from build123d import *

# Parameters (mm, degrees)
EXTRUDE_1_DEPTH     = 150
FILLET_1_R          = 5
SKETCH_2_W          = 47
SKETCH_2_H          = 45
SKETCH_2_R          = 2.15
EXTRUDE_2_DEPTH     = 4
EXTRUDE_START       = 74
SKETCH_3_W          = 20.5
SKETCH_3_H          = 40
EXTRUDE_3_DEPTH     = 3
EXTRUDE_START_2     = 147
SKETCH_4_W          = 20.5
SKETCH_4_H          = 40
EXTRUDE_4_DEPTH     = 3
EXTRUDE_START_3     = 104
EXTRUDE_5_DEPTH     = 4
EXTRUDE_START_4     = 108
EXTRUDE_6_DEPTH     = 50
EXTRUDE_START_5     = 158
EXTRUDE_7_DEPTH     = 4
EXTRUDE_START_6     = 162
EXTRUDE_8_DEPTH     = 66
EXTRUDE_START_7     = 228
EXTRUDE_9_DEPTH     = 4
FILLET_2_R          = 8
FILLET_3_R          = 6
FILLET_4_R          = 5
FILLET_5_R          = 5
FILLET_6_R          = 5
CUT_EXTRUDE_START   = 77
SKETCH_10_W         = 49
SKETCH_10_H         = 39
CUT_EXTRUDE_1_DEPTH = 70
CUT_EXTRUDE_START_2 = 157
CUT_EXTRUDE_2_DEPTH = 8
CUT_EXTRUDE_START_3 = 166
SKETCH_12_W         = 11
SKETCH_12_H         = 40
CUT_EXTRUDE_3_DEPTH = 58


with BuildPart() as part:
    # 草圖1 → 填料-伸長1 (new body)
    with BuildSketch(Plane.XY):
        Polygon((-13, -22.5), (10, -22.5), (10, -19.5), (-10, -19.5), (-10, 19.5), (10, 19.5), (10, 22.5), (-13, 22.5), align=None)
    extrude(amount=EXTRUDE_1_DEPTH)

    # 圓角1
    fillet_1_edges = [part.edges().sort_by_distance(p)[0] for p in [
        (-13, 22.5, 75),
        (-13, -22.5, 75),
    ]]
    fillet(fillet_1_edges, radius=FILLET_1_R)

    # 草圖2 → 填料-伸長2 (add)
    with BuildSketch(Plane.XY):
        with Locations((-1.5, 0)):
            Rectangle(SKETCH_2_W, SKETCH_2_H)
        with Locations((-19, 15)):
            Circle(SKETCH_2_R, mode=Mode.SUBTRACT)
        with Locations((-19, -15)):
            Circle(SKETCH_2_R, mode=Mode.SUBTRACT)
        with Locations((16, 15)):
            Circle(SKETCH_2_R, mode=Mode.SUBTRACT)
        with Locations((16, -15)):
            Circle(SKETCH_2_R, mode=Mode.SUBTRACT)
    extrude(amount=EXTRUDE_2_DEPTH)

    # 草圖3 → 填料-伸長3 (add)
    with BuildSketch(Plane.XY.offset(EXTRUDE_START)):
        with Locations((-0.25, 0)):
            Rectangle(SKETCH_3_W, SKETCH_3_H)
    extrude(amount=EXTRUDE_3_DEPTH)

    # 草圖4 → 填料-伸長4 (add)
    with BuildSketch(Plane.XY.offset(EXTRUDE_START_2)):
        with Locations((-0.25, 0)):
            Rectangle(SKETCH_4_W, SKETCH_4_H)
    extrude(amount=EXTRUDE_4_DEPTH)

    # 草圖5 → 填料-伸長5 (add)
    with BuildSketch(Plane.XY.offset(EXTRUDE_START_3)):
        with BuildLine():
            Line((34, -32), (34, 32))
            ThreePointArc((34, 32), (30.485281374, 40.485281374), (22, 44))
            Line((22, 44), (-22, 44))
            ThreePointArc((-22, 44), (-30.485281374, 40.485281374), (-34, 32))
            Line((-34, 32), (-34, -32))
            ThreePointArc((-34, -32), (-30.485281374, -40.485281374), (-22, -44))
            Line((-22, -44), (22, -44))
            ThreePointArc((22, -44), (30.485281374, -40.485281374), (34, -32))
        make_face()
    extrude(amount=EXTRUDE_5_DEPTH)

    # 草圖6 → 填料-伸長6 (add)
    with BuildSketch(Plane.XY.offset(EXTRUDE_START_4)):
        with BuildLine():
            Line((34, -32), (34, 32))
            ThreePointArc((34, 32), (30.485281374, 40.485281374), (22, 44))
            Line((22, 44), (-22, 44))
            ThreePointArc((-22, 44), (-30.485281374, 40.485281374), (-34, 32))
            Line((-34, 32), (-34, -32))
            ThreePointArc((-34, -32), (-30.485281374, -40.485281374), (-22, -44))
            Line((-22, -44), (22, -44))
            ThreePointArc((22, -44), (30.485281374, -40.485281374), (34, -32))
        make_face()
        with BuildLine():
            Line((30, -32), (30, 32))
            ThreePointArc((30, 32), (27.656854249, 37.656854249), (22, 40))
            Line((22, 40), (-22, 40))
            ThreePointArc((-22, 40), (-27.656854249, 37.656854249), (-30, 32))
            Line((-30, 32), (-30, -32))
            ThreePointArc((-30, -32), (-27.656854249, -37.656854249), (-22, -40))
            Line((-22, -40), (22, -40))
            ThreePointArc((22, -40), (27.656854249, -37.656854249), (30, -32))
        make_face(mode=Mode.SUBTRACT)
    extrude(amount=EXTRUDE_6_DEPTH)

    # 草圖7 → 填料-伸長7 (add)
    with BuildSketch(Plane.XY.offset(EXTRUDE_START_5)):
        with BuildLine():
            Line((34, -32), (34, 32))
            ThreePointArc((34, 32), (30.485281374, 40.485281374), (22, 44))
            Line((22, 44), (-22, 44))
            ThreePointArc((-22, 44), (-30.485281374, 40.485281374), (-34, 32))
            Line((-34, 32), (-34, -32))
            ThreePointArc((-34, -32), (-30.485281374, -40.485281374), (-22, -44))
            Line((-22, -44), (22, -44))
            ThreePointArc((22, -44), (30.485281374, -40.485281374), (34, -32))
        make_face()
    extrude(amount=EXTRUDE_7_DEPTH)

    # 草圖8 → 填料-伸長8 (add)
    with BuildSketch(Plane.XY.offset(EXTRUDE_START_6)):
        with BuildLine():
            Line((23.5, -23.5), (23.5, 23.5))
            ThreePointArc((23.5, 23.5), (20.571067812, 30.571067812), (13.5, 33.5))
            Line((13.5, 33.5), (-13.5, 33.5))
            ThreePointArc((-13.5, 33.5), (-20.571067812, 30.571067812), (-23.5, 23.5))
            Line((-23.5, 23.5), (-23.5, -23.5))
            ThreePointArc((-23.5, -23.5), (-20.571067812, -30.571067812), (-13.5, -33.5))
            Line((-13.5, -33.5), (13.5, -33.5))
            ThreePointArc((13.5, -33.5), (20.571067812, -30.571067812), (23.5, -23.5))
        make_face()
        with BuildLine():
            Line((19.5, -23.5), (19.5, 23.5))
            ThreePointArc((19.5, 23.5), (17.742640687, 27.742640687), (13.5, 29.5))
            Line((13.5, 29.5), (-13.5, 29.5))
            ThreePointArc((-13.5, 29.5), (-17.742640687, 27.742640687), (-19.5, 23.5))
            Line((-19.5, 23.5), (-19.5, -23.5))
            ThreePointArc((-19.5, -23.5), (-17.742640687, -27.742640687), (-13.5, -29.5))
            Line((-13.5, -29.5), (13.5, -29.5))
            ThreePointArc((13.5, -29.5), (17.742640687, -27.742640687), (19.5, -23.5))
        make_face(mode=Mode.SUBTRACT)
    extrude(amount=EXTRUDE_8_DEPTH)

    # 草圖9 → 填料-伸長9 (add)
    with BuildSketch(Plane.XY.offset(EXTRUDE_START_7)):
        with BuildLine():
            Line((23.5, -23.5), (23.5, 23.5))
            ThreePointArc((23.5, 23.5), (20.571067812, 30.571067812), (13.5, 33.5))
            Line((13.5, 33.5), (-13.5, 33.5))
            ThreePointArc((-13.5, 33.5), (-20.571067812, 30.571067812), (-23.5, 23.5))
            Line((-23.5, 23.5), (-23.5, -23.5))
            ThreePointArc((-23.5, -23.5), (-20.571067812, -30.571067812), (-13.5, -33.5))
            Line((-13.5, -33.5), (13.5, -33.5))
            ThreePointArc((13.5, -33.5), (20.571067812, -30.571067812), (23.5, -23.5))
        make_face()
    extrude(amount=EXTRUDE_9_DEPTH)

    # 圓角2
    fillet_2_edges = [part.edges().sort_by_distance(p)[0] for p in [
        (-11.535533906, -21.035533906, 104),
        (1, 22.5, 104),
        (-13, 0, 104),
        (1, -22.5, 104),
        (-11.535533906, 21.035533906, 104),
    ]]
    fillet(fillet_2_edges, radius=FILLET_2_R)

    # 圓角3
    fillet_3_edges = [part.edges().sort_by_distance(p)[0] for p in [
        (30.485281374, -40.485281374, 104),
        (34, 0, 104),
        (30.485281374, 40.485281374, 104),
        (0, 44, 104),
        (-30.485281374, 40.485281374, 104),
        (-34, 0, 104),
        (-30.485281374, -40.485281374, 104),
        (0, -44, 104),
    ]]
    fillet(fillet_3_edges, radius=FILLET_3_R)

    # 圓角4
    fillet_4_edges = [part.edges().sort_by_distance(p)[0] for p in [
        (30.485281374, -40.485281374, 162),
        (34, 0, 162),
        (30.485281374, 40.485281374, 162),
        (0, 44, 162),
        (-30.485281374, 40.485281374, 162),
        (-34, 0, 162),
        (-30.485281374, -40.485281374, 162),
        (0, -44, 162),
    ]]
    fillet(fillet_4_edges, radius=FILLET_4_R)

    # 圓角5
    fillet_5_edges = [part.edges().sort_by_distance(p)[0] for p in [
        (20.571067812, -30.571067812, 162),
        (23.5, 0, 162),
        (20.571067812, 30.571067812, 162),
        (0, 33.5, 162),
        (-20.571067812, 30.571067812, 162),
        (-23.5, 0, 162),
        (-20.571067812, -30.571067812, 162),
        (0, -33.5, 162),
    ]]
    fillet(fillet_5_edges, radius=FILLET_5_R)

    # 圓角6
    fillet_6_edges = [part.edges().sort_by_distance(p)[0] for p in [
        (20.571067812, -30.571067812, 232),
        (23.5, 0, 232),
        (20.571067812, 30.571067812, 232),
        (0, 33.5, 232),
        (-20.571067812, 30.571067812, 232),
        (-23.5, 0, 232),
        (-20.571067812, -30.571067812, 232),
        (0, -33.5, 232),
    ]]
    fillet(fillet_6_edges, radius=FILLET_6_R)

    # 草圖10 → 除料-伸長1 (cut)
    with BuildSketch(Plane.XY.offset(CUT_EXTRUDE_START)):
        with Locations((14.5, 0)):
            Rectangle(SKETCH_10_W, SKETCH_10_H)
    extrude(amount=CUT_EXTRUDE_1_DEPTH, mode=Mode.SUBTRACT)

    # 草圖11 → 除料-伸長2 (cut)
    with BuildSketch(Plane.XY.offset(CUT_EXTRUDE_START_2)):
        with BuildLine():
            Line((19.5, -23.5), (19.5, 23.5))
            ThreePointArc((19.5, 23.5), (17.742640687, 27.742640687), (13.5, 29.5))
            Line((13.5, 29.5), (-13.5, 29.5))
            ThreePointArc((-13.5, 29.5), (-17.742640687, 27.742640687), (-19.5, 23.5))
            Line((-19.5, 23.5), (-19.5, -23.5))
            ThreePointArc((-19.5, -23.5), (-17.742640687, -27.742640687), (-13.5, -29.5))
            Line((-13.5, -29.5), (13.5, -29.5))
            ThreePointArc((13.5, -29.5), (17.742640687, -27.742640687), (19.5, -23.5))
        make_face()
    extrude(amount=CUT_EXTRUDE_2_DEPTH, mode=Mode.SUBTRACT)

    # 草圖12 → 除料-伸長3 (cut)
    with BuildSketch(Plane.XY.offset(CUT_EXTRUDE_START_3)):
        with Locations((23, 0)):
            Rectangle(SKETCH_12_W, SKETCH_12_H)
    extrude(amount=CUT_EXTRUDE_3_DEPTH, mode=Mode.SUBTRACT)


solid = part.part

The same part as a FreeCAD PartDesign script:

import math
import FreeCAD as App
import Part
import Sketcher

V = App.Vector


def edges_at(feature, points):
    """Names of the edges that pass closest to the given points."""
    edges = feature.Shape.Edges
    near = lambda p: min(range(len(edges)), key=lambda i: edges[i].distToShape(Part.Vertex(*p))[0])
    return sorted({f"Edge{near(p) + 1}" for p in points})


def add_polygon(sketch, points):
    """Adds a closed chain of lines whose ends are joined by coincident constraints."""
    first, n = sketch.GeometryCount, len(points)
    for a, b in zip(points, points[1:] + points[:1]):
        sketch.addGeometry(Part.LineSegment(App.Vector(*a, 0), App.Vector(*b, 0)), False)
    for i in range(n):
        sketch.addConstraint(Sketcher.Constraint("Coincident", first + i, 2, first + (i + 1) % n, 1))

doc = App.newDocument("Part")
body = doc.addObject("PartDesign::Body", "Body")

# Sketch on XY plane
sketch1 = body.newObject("Sketcher::SketchObject", "Sketch")
sketch1.AttachmentSupport = (doc.getObject("XY_Plane"), [""])
sketch1.MapMode = "FlatFace"
add_polygon(sketch1, [(-13, -22.5), (10, -22.5), (10, -19.5), (-10, -19.5), (-10, 19.5), (10, 19.5), (10, 22.5), (-13, 22.5)])  # lines 0-7
sketch1.addConstraint(Sketcher.Constraint("Horizontal", 0))
sketch1.addConstraint(Sketcher.Constraint("Vertical", 1))
sketch1.addConstraint(Sketcher.Constraint("Horizontal", 2))
sketch1.addConstraint(Sketcher.Constraint("Vertical", 3))
sketch1.addConstraint(Sketcher.Constraint("Horizontal", 4))
sketch1.addConstraint(Sketcher.Constraint("Vertical", 5))
sketch1.addConstraint(Sketcher.Constraint("Horizontal", 6))
sketch1.addConstraint(Sketcher.Constraint("Vertical", 7))
sketch1.addConstraint(Sketcher.Constraint("Symmetric", 1, 2, 3, 2, -1, 1))
sketch1.addConstraint(Sketcher.Constraint("Symmetric", 0, 2, 5, 2, -1))
sketch1.addConstraint(Sketcher.Constraint("DistanceX", 0, 1, 0, 2, 23.0))
sketch1.addConstraint(Sketcher.Constraint("DistanceX", 2, 2, 2, 1, 20.0))
sketch1.addConstraint(Sketcher.Constraint("DistanceY", 1, 1, 1, 2, 3.0))
sketch1.addConstraint(Sketcher.Constraint("DistanceY", 3, 1, 3, 2, 39.0))
pad1 = body.newObject("PartDesign::Pad", "Pad")
pad1.Profile = sketch1
pad1.Length = 150
doc.recompute()

fillet = body.newObject("PartDesign::Fillet", "Fillet")
fillet.Base = (pad1, edges_at(pad1, [(-13, 22.5, 75), (-13, -22.5, 75)]))
fillet.Radius = 5

# Sketch on XY plane
sketch2 = body.newObject("Sketcher::SketchObject", "Sketch001")
sketch2.AttachmentSupport = (doc.getObject("XY_Plane"), [""])
sketch2.MapMode = "FlatFace"
add_polygon(sketch2, [(-25, 22.5), (-25, -22.5), (22, -22.5), (22, 22.5)])  # lines 0-3
sketch2.addGeometry(Part.Circle(V(-19, -15, 0), V(0, 0, 1), 2.1), False)  # 4
sketch2.addGeometry(Part.Circle(V(16, -15, 0), V(0, 0, 1), 2.1), False)  # 5
sketch2.addGeometry(Part.Circle(V(-19, 15, 0), V(0, 0, 1), 2.1), False)  # 6
sketch2.addGeometry(Part.Circle(V(16, 15, 0), V(0, 0, 1), 2.1), False)  # 7
sketch2.addConstraint(Sketcher.Constraint("Vertical", 0))
sketch2.addConstraint(Sketcher.Constraint("Horizontal", 1))
sketch2.addConstraint(Sketcher.Constraint("Vertical", 2))
sketch2.addConstraint(Sketcher.Constraint("Horizontal", 3))
sketch2.addConstraint(Sketcher.Constraint("Equal", 4, 5))
sketch2.addConstraint(Sketcher.Constraint("Equal", 5, 6))
sketch2.addConstraint(Sketcher.Constraint("Equal", 6, 7))
sketch2.addConstraint(Sketcher.Constraint("Symmetric", 4, 3, 6, 3, -1))
sketch2.addConstraint(Sketcher.Constraint("Symmetric", 5, 3, 7, 3, -1))
sketch2.addConstraint(Sketcher.Constraint("Horizontal", 4, 3, 5, 3))
sketch2.addConstraint(Sketcher.Constraint("Diameter", 4, 4.3))
sketch2.addConstraint(Sketcher.Constraint("DistanceX", 1, 1, 1, 2, 47.0))
sketch2.addConstraint(Sketcher.Constraint("DistanceY", 0, 2, 0, 1, 45.0))
sketch2.addConstraint(Sketcher.Constraint("DistanceX", 4, 3, -1, 1, 19.0))
sketch2.addConstraint(Sketcher.Constraint("DistanceY", 4, 3, -1, 1, 15.0))
sketch2.addConstraint(Sketcher.Constraint("DistanceX", -1, 1, 5, 3, 16.0))
sketch2.addConstraint(Sketcher.Constraint("DistanceX", 0, 2, -1, 1, 25.0))
sketch2.addConstraint(Sketcher.Constraint("DistanceY", 0, 2, -1, 1, 22.5))
pad2 = body.newObject("PartDesign::Pad", "Pad001")
pad2.Profile = sketch2
pad2.Length = 4

# Sketch on XY plane
sketch3 = body.newObject("Sketcher::SketchObject", "Sketch002")
sketch3.AttachmentSupport = (doc.getObject("XY_Plane"), [""])
sketch3.MapMode = "FlatFace"
sketch3.AttachmentOffset = App.Placement(V(0, 0, 74), App.Rotation())
add_polygon(sketch3, [(-10, 20), (-10, -20), (10, -20), (10, 20)])  # lines 0-3
sketch3.addConstraint(Sketcher.Constraint("Vertical", 0))
sketch3.addConstraint(Sketcher.Constraint("Horizontal", 1))
sketch3.addConstraint(Sketcher.Constraint("Vertical", 2))
sketch3.addConstraint(Sketcher.Constraint("Horizontal", 3))
sketch3.addConstraint(Sketcher.Constraint("DistanceY", 0, 2, 0, 1, 40.0))
sketch3.addConstraint(Sketcher.Constraint("DistanceX", 1, 1, 1, 2, 20.5))
sketch3.addConstraint(Sketcher.Constraint("DistanceY", 0, 2, -1, 1, 20.0))
sketch3.addConstraint(Sketcher.Constraint("DistanceX", -1, 1, 1, 2, 10.0))
pad3 = body.newObject("PartDesign::Pad", "Pad002")
pad3.Profile = sketch3
pad3.Length = 3

# Sketch on XY plane
sketch4 = body.newObject("Sketcher::SketchObject", "Sketch003")
sketch4.AttachmentSupport = (doc.getObject("XY_Plane"), [""])
sketch4.MapMode = "FlatFace"
sketch4.AttachmentOffset = App.Placement(V(0, 0, 147), App.Rotation())
add_polygon(sketch4, [(-10, 20), (-10, -20), (10, -20), (10, 20)])  # lines 0-3
sketch4.addConstraint(Sketcher.Constraint("Vertical", 0))
sketch4.addConstraint(Sketcher.Constraint("Horizontal", 1))
sketch4.addConstraint(Sketcher.Constraint("Vertical", 2))
sketch4.addConstraint(Sketcher.Constraint("Horizontal", 3))
sketch4.addConstraint(Sketcher.Constraint("DistanceY", 0, 2, 0, 1, 40.0))
sketch4.addConstraint(Sketcher.Constraint("DistanceX", 1, 1, 1, 2, 20.5))
sketch4.addConstraint(Sketcher.Constraint("DistanceY", 0, 2, -1, 1, 20.0))
sketch4.addConstraint(Sketcher.Constraint("DistanceX", -1, 1, 1, 2, 10.0))
pad4 = body.newObject("PartDesign::Pad", "Pad003")
pad4.Profile = sketch4
pad4.Length = 3

# Sketch on XY plane
sketch5 = body.newObject("Sketcher::SketchObject", "Sketch004")
sketch5.AttachmentSupport = (doc.getObject("XY_Plane"), [""])
sketch5.MapMode = "FlatFace"
sketch5.AttachmentOffset = App.Placement(V(0, 0, 104), App.Rotation())
sketch5.addGeometry(Part.LineSegment(V(34, -32, 0), V(34, 32, 0)), False)
sketch5.addGeometry(Part.ArcOfCircle(Part.Circle(V(22, 32, 0), V(0, 0, 1), 12), math.radians(0), math.radians(90)), False)
sketch5.addGeometry(Part.LineSegment(V(22, 44, 0), V(-22, 44, 0)), False)
sketch5.addGeometry(Part.ArcOfCircle(Part.Circle(V(-22, 32, 0), V(0, 0, 1), 12), math.radians(90), math.radians(180)), False)
sketch5.addGeometry(Part.LineSegment(V(-34, 32, 0), V(-34, -32, 0)), False)
sketch5.addGeometry(Part.ArcOfCircle(Part.Circle(V(-22, -32, 0), V(0, 0, 1), 12), math.radians(-180), math.radians(-90)), False)
sketch5.addGeometry(Part.LineSegment(V(-22, -44, 0), V(22, -44, 0)), False)
sketch5.addGeometry(Part.ArcOfCircle(Part.Circle(V(22, -32, 0), V(0, 0, 1), 12), math.radians(-90), math.radians(0)), False)
sketch5.addConstraint(Sketcher.Constraint("Tangent", 0, 2, 1, 1))
sketch5.addConstraint(Sketcher.Constraint("Tangent", 1, 2, 2, 1))
sketch5.addConstraint(Sketcher.Constraint("Tangent", 2, 2, 3, 1))
sketch5.addConstraint(Sketcher.Constraint("Tangent", 3, 2, 4, 1))
sketch5.addConstraint(Sketcher.Constraint("Tangent", 4, 2, 5, 1))
sketch5.addConstraint(Sketcher.Constraint("Tangent", 5, 2, 6, 1))
sketch5.addConstraint(Sketcher.Constraint("Tangent", 6, 2, 7, 1))
sketch5.addConstraint(Sketcher.Constraint("Tangent", 7, 2, 0, 1))
sketch5.addConstraint(Sketcher.Constraint("Vertical", 0))
sketch5.addConstraint(Sketcher.Constraint("Horizontal", 2))
sketch5.addConstraint(Sketcher.Constraint("Vertical", 4))
sketch5.addConstraint(Sketcher.Constraint("Horizontal", 6))
sketch5.addConstraint(Sketcher.Constraint("Equal", 1, 3))
sketch5.addConstraint(Sketcher.Constraint("Equal", 3, 5))
sketch5.addConstraint(Sketcher.Constraint("Equal", 5, 7))
sketch5.addConstraint(Sketcher.Constraint("Symmetric", 1, 3, 5, 3, -1, 1))
sketch5.addConstraint(Sketcher.Constraint("Radius", 1, 12.0))
sketch5.addConstraint(Sketcher.Constraint("DistanceX", 2, 2, 2, 1, 44.0))
sketch5.addConstraint(Sketcher.Constraint("DistanceY", 0, 1, 0, 2, 64.0))
pad5 = body.newObject("PartDesign::Pad", "Pad004")
pad5.Profile = sketch5
pad5.Length = 4

# Sketch on XY plane
sketch6 = body.newObject("Sketcher::SketchObject", "Sketch005")
sketch6.AttachmentSupport = (doc.getObject("XY_Plane"), [""])
sketch6.MapMode = "FlatFace"
sketch6.AttachmentOffset = App.Placement(V(0, 0, 108), App.Rotation())
sketch6.addGeometry(Part.LineSegment(V(34, -32, 0), V(34, 32, 0)), False)
sketch6.addGeometry(Part.ArcOfCircle(Part.Circle(V(22, 32, 0), V(0, 0, 1), 12), math.radians(0), math.radians(90)), False)
sketch6.addGeometry(Part.LineSegment(V(22, 44, 0), V(-22, 44, 0)), False)
sketch6.addGeometry(Part.ArcOfCircle(Part.Circle(V(-22, 32, 0), V(0, 0, 1), 12), math.radians(90), math.radians(180)), False)
sketch6.addGeometry(Part.LineSegment(V(-34, 32, 0), V(-34, -32, 0)), False)
sketch6.addGeometry(Part.ArcOfCircle(Part.Circle(V(-22, -32, 0), V(0, 0, 1), 12), math.radians(-180), math.radians(-90)), False)
sketch6.addGeometry(Part.LineSegment(V(-22, -44, 0), V(22, -44, 0)), False)
sketch6.addGeometry(Part.ArcOfCircle(Part.Circle(V(22, -32, 0), V(0, 0, 1), 12), math.radians(-90), math.radians(0)), False)
sketch6.addGeometry(Part.LineSegment(V(30, 32, 0), V(30, -32, 0)), False)
sketch6.addGeometry(Part.ArcOfCircle(Part.Circle(V(22, -32, 0), V(0, 0, 1), 8), math.radians(-90), math.radians(0)), False)
sketch6.addGeometry(Part.LineSegment(V(22, -40, 0), V(-22, -40, 0)), False)
sketch6.addGeometry(Part.ArcOfCircle(Part.Circle(V(-22, -32, 0), V(0, 0, 1), 8), math.radians(-180), math.radians(-90)), False)
sketch6.addGeometry(Part.LineSegment(V(-30, -32, 0), V(-30, 32, 0)), False)
sketch6.addGeometry(Part.ArcOfCircle(Part.Circle(V(-22, 32, 0), V(0, 0, 1), 8), math.radians(90), math.radians(180)), False)
sketch6.addGeometry(Part.LineSegment(V(-22, 40, 0), V(22, 40, 0)), False)
sketch6.addGeometry(Part.ArcOfCircle(Part.Circle(V(22, 32, 0), V(0, 0, 1), 8), math.radians(0), math.radians(90)), False)
sketch6.addConstraint(Sketcher.Constraint("Tangent", 0, 2, 1, 1))
sketch6.addConstraint(Sketcher.Constraint("Tangent", 1, 2, 2, 1))
sketch6.addConstraint(Sketcher.Constraint("Tangent", 2, 2, 3, 1))
sketch6.addConstraint(Sketcher.Constraint("Tangent", 3, 2, 4, 1))
sketch6.addConstraint(Sketcher.Constraint("Tangent", 4, 2, 5, 1))
sketch6.addConstraint(Sketcher.Constraint("Tangent", 5, 2, 6, 1))
sketch6.addConstraint(Sketcher.Constraint("Tangent", 6, 2, 7, 1))
sketch6.addConstraint(Sketcher.Constraint("Tangent", 7, 2, 0, 1))
sketch6.addConstraint(Sketcher.Constraint("Tangent", 8, 2, 9, 2))
sketch6.addConstraint(Sketcher.Constraint("Tangent", 9, 1, 10, 1))
sketch6.addConstraint(Sketcher.Constraint("Tangent", 10, 2, 11, 2))
sketch6.addConstraint(Sketcher.Constraint("Tangent", 11, 1, 12, 1))
sketch6.addConstraint(Sketcher.Constraint("Tangent", 12, 2, 13, 2))
sketch6.addConstraint(Sketcher.Constraint("Tangent", 13, 1, 14, 1))
sketch6.addConstraint(Sketcher.Constraint("Tangent", 14, 2, 15, 2))
sketch6.addConstraint(Sketcher.Constraint("Tangent", 15, 1, 8, 1))
sketch6.addConstraint(Sketcher.Constraint("Vertical", 0))
sketch6.addConstraint(Sketcher.Constraint("Horizontal", 2))
sketch6.addConstraint(Sketcher.Constraint("Vertical", 4))
sketch6.addConstraint(Sketcher.Constraint("Horizontal", 6))
sketch6.addConstraint(Sketcher.Constraint("Vertical", 8))
sketch6.addConstraint(Sketcher.Constraint("Horizontal", 10))
sketch6.addConstraint(Sketcher.Constraint("Vertical", 12))
sketch6.addConstraint(Sketcher.Constraint("Horizontal", 14))
sketch6.addConstraint(Sketcher.Constraint("Coincident", 9, 3, 7, 3))
sketch6.addConstraint(Sketcher.Constraint("Coincident", 11, 3, 5, 3))
sketch6.addConstraint(Sketcher.Constraint("Coincident", 13, 3, 3, 3))
sketch6.addConstraint(Sketcher.Constraint("Equal", 1, 3))
sketch6.addConstraint(Sketcher.Constraint("Equal", 3, 5))
sketch6.addConstraint(Sketcher.Constraint("Equal", 5, 7))
sketch6.addConstraint(Sketcher.Constraint("Equal", 13, 15))
sketch6.addConstraint(Sketcher.Constraint("Symmetric", 1, 3, 5, 3, -1, 1))
sketch6.addConstraint(Sketcher.Constraint("Radius", 1, 12.0))
sketch6.addConstraint(Sketcher.Constraint("Radius", 9, 8.0))
sketch6.addConstraint(Sketcher.Constraint("DistanceX", 2, 2, 2, 1, 44.0))
sketch6.addConstraint(Sketcher.Constraint("DistanceY", 0, 1, 0, 2, 64.0))
pad6 = body.newObject("PartDesign::Pad", "Pad005")
pad6.Profile = sketch6
pad6.Length = 50

# Sketch on XY plane
sketch7 = body.newObject("Sketcher::SketchObject", "Sketch006")
sketch7.AttachmentSupport = (doc.getObject("XY_Plane"), [""])
sketch7.MapMode = "FlatFace"
sketch7.AttachmentOffset = App.Placement(V(0, 0, 158), App.Rotation())
sketch7.addGeometry(Part.LineSegment(V(34, -32, 0), V(34, 32, 0)), False)
sketch7.addGeometry(Part.ArcOfCircle(Part.Circle(V(22, 32, 0), V(0, 0, 1), 12), math.radians(0), math.radians(90)), False)
sketch7.addGeometry(Part.LineSegment(V(22, 44, 0), V(-22, 44, 0)), False)
sketch7.addGeometry(Part.ArcOfCircle(Part.Circle(V(-22, 32, 0), V(0, 0, 1), 12), math.radians(90), math.radians(180)), False)
sketch7.addGeometry(Part.LineSegment(V(-34, 32, 0), V(-34, -32, 0)), False)
sketch7.addGeometry(Part.ArcOfCircle(Part.Circle(V(-22, -32, 0), V(0, 0, 1), 12), math.radians(-180), math.radians(-90)), False)
sketch7.addGeometry(Part.LineSegment(V(-22, -44, 0), V(22, -44, 0)), False)
sketch7.addGeometry(Part.ArcOfCircle(Part.Circle(V(22, -32, 0), V(0, 0, 1), 12), math.radians(-90), math.radians(0)), False)
sketch7.addConstraint(Sketcher.Constraint("Tangent", 0, 2, 1, 1))
sketch7.addConstraint(Sketcher.Constraint("Tangent", 1, 2, 2, 1))
sketch7.addConstraint(Sketcher.Constraint("Tangent", 2, 2, 3, 1))
sketch7.addConstraint(Sketcher.Constraint("Tangent", 3, 2, 4, 1))
sketch7.addConstraint(Sketcher.Constraint("Tangent", 4, 2, 5, 1))
sketch7.addConstraint(Sketcher.Constraint("Tangent", 5, 2, 6, 1))
sketch7.addConstraint(Sketcher.Constraint("Tangent", 6, 2, 7, 1))
sketch7.addConstraint(Sketcher.Constraint("Tangent", 7, 2, 0, 1))
sketch7.addConstraint(Sketcher.Constraint("Vertical", 0))
sketch7.addConstraint(Sketcher.Constraint("Horizontal", 2))
sketch7.addConstraint(Sketcher.Constraint("Vertical", 4))
sketch7.addConstraint(Sketcher.Constraint("Horizontal", 6))
sketch7.addConstraint(Sketcher.Constraint("Equal", 1, 3))
sketch7.addConstraint(Sketcher.Constraint("Equal", 3, 5))
sketch7.addConstraint(Sketcher.Constraint("Equal", 5, 7))
sketch7.addConstraint(Sketcher.Constraint("Symmetric", 1, 3, 5, 3, -1, 1))
sketch7.addConstraint(Sketcher.Constraint("Radius", 1, 12.0))
sketch7.addConstraint(Sketcher.Constraint("DistanceX", 2, 2, 2, 1, 44.0))
sketch7.addConstraint(Sketcher.Constraint("DistanceY", 0, 1, 0, 2, 64.0))
pad7 = body.newObject("PartDesign::Pad", "Pad006")
pad7.Profile = sketch7
pad7.Length = 4

# Sketch on XY plane
sketch8 = body.newObject("Sketcher::SketchObject", "Sketch007")
sketch8.AttachmentSupport = (doc.getObject("XY_Plane"), [""])
sketch8.MapMode = "FlatFace"
sketch8.AttachmentOffset = App.Placement(V(0, 0, 162), App.Rotation())
sketch8.addGeometry(Part.LineSegment(V(24, -24, 0), V(24, 24, 0)), False)
sketch8.addGeometry(Part.ArcOfCircle(Part.Circle(V(14, 24, 0), V(0, 0, 1), 10), math.radians(0), math.radians(90)), False)
sketch8.addGeometry(Part.LineSegment(V(14, 34, 0), V(-14, 34, 0)), False)
sketch8.addGeometry(Part.ArcOfCircle(Part.Circle(V(-14, 24, 0), V(0, 0, 1), 10), math.radians(90), math.radians(180)), False)
sketch8.addGeometry(Part.LineSegment(V(-24, 24, 0), V(-24, -24, 0)), False)
sketch8.addGeometry(Part.ArcOfCircle(Part.Circle(V(-14, -24, 0), V(0, 0, 1), 10), math.radians(180), math.radians(270)), False)
sketch8.addGeometry(Part.LineSegment(V(-14, -34, 0), V(14, -34, 0)), False)
sketch8.addGeometry(Part.ArcOfCircle(Part.Circle(V(14, -24, 0), V(0, 0, 1), 10), math.radians(-90), math.radians(0)), False)
sketch8.addGeometry(Part.LineSegment(V(20, 24, 0), V(20, -24, 0)), False)
sketch8.addGeometry(Part.ArcOfCircle(Part.Circle(V(14, -24, 0), V(0, 0, 1), 6), math.radians(-90), math.radians(0)), False)
sketch8.addGeometry(Part.LineSegment(V(14, -30, 0), V(-14, -30, 0)), False)
sketch8.addGeometry(Part.ArcOfCircle(Part.Circle(V(-14, -24, 0), V(0, 0, 1), 6), math.radians(180), math.radians(270)), False)
sketch8.addGeometry(Part.LineSegment(V(-20, -24, 0), V(-20, 24, 0)), False)
sketch8.addGeometry(Part.ArcOfCircle(Part.Circle(V(-14, 24, 0), V(0, 0, 1), 6), math.radians(90), math.radians(180)), False)
sketch8.addGeometry(Part.LineSegment(V(-14, 30, 0), V(14, 30, 0)), False)
sketch8.addGeometry(Part.ArcOfCircle(Part.Circle(V(14, 24, 0), V(0, 0, 1), 6), math.radians(0), math.radians(90)), False)
sketch8.addConstraint(Sketcher.Constraint("Tangent", 0, 2, 1, 1))
sketch8.addConstraint(Sketcher.Constraint("Tangent", 1, 2, 2, 1))
sketch8.addConstraint(Sketcher.Constraint("Tangent", 2, 2, 3, 1))
sketch8.addConstraint(Sketcher.Constraint("Tangent", 3, 2, 4, 1))
sketch8.addConstraint(Sketcher.Constraint("Tangent", 4, 2, 5, 1))
sketch8.addConstraint(Sketcher.Constraint("Tangent", 5, 2, 6, 1))
sketch8.addConstraint(Sketcher.Constraint("Tangent", 6, 2, 7, 1))
sketch8.addConstraint(Sketcher.Constraint("Tangent", 7, 2, 0, 1))
sketch8.addConstraint(Sketcher.Constraint("Tangent", 8, 2, 9, 2))
sketch8.addConstraint(Sketcher.Constraint("Tangent", 9, 1, 10, 1))
sketch8.addConstraint(Sketcher.Constraint("Tangent", 10, 2, 11, 2))
sketch8.addConstraint(Sketcher.Constraint("Tangent", 11, 1, 12, 1))
sketch8.addConstraint(Sketcher.Constraint("Tangent", 12, 2, 13, 2))
sketch8.addConstraint(Sketcher.Constraint("Tangent", 13, 1, 14, 1))
sketch8.addConstraint(Sketcher.Constraint("Tangent", 14, 2, 15, 2))
sketch8.addConstraint(Sketcher.Constraint("Tangent", 15, 1, 8, 1))
sketch8.addConstraint(Sketcher.Constraint("Vertical", 0))
sketch8.addConstraint(Sketcher.Constraint("Horizontal", 2))
sketch8.addConstraint(Sketcher.Constraint("Vertical", 4))
sketch8.addConstraint(Sketcher.Constraint("Horizontal", 6))
sketch8.addConstraint(Sketcher.Constraint("Vertical", 8))
sketch8.addConstraint(Sketcher.Constraint("Horizontal", 10))
sketch8.addConstraint(Sketcher.Constraint("Vertical", 12))
sketch8.addConstraint(Sketcher.Constraint("Horizontal", 14))
sketch8.addConstraint(Sketcher.Constraint("Coincident", 9, 3, 7, 3))
sketch8.addConstraint(Sketcher.Constraint("Coincident", 11, 3, 5, 3))
sketch8.addConstraint(Sketcher.Constraint("Coincident", 13, 3, 3, 3))
sketch8.addConstraint(Sketcher.Constraint("Equal", 1, 3))
sketch8.addConstraint(Sketcher.Constraint("Equal", 3, 5))
sketch8.addConstraint(Sketcher.Constraint("Equal", 5, 7))
sketch8.addConstraint(Sketcher.Constraint("Equal", 13, 15))
sketch8.addConstraint(Sketcher.Constraint("Symmetric", 1, 3, 5, 3, -1, 1))
sketch8.addConstraint(Sketcher.Constraint("Radius", 1, 10.0))
sketch8.addConstraint(Sketcher.Constraint("Radius", 9, 6.0))
sketch8.addConstraint(Sketcher.Constraint("DistanceX", 2, 2, 2, 1, 27.0))
sketch8.addConstraint(Sketcher.Constraint("DistanceY", 0, 1, 0, 2, 47.0))
pad8 = body.newObject("PartDesign::Pad", "Pad007")
pad8.Profile = sketch8
pad8.Length = 66

# Sketch on XY plane
sketch9 = body.newObject("Sketcher::SketchObject", "Sketch008")
sketch9.AttachmentSupport = (doc.getObject("XY_Plane"), [""])
sketch9.MapMode = "FlatFace"
sketch9.AttachmentOffset = App.Placement(V(0, 0, 228), App.Rotation())
sketch9.addGeometry(Part.LineSegment(V(24, -24, 0), V(24, 24, 0)), False)
sketch9.addGeometry(Part.ArcOfCircle(Part.Circle(V(14, 24, 0), V(0, 0, 1), 10), math.radians(0), math.radians(90)), False)
sketch9.addGeometry(Part.LineSegment(V(14, 34, 0), V(-14, 34, 0)), False)
sketch9.addGeometry(Part.ArcOfCircle(Part.Circle(V(-14, 24, 0), V(0, 0, 1), 10), math.radians(90), math.radians(180)), False)
sketch9.addGeometry(Part.LineSegment(V(-24, 24, 0), V(-24, -24, 0)), False)
sketch9.addGeometry(Part.ArcOfCircle(Part.Circle(V(-14, -24, 0), V(0, 0, 1), 10), math.radians(180), math.radians(270)), False)
sketch9.addGeometry(Part.LineSegment(V(-14, -34, 0), V(14, -34, 0)), False)
sketch9.addGeometry(Part.ArcOfCircle(Part.Circle(V(14, -24, 0), V(0, 0, 1), 10), math.radians(-90), math.radians(0)), False)
sketch9.addConstraint(Sketcher.Constraint("Tangent", 0, 2, 1, 1))
sketch9.addConstraint(Sketcher.Constraint("Tangent", 1, 2, 2, 1))
sketch9.addConstraint(Sketcher.Constraint("Tangent", 2, 2, 3, 1))
sketch9.addConstraint(Sketcher.Constraint("Tangent", 3, 2, 4, 1))
sketch9.addConstraint(Sketcher.Constraint("Tangent", 4, 2, 5, 1))
sketch9.addConstraint(Sketcher.Constraint("Tangent", 5, 2, 6, 1))
sketch9.addConstraint(Sketcher.Constraint("Tangent", 6, 2, 7, 1))
sketch9.addConstraint(Sketcher.Constraint("Tangent", 7, 2, 0, 1))
sketch9.addConstraint(Sketcher.Constraint("Vertical", 0))
sketch9.addConstraint(Sketcher.Constraint("Horizontal", 2))
sketch9.addConstraint(Sketcher.Constraint("Vertical", 4))
sketch9.addConstraint(Sketcher.Constraint("Horizontal", 6))
sketch9.addConstraint(Sketcher.Constraint("Equal", 1, 3))
sketch9.addConstraint(Sketcher.Constraint("Equal", 3, 5))
sketch9.addConstraint(Sketcher.Constraint("Equal", 5, 7))
sketch9.addConstraint(Sketcher.Constraint("Symmetric", 1, 3, 5, 3, -1, 1))
sketch9.addConstraint(Sketcher.Constraint("Radius", 1, 10.0))
sketch9.addConstraint(Sketcher.Constraint("DistanceX", 2, 2, 2, 1, 27.0))
sketch9.addConstraint(Sketcher.Constraint("DistanceY", 0, 1, 0, 2, 47.0))
pad9 = body.newObject("PartDesign::Pad", "Pad008")
pad9.Profile = sketch9
pad9.Length = 4
doc.recompute()

fillet2 = body.newObject("PartDesign::Fillet", "Fillet001")
fillet2.Base = (pad9, edges_at(pad9, [
    (-11.536, -21.036, 104),
    (1, 22.5, 104),
    (-13, 0, 104),
    (1, -22.5, 104),
    (-11.536, 21.036, 104),
]))
fillet2.Radius = 8
doc.recompute()

fillet3 = body.newObject("PartDesign::Fillet", "Fillet002")
fillet3.Base = (fillet2, edges_at(fillet2, [
    (30.485, -40.485, 104),
    (34, 0, 104),
    (30.485, 40.485, 104),
    (0, 44, 104),
    (-30.485, 40.485, 104),
    (-34, 0, 104),
    (-30.485, -40.485, 104),
    (0, -44, 104),
]))
fillet3.Radius = 6
doc.recompute()

fillet4 = body.newObject("PartDesign::Fillet", "Fillet003")
fillet4.Base = (fillet3, edges_at(fillet3, [
    (30.485, -40.485, 162),
    (34, 0, 162),
    (30.485, 40.485, 162),
    (0, 44, 162),
    (-30.485, 40.485, 162),
    (-34, 0, 162),
    (-30.485, -40.485, 162),
    (0, -44, 162),
]))
fillet4.Radius = 5
doc.recompute()

fillet5 = body.newObject("PartDesign::Fillet", "Fillet004")
fillet5.Base = (fillet4, edges_at(fillet4, [
    (20.571, -30.571, 162),
    (23.5, 0, 162),
    (20.571, 30.571, 162),
    (0, 33.5, 162),
    (-20.571, 30.571, 162),
    (-23.5, 0, 162),
    (-20.571, -30.571, 162),
    (0, -33.5, 162),
]))
fillet5.Radius = 5
doc.recompute()

fillet6 = body.newObject("PartDesign::Fillet", "Fillet005")
fillet6.Base = (fillet5, edges_at(fillet5, [
    (20.571, -30.571, 232),
    (23.5, 0, 232),
    (20.571, 30.571, 232),
    (0, 33.5, 232),
    (-20.571, 30.571, 232),
    (-23.5, 0, 232),
    (-20.571, -30.571, 232),
    (0, -33.5, 232),
]))
fillet6.Radius = 5

# Sketch on XY plane
sketch10 = body.newObject("Sketcher::SketchObject", "Sketch009")
sketch10.AttachmentSupport = (doc.getObject("XY_Plane"), [""])
sketch10.MapMode = "FlatFace"
sketch10.AttachmentOffset = App.Placement(V(0, 0, 77), App.Rotation())
add_polygon(sketch10, [(-10, 20), (-10, -20), (39, -20), (39, 20)])  # lines 0-3
sketch10.addConstraint(Sketcher.Constraint("Vertical", 0))
sketch10.addConstraint(Sketcher.Constraint("Horizontal", 1))
sketch10.addConstraint(Sketcher.Constraint("Vertical", 2))
sketch10.addConstraint(Sketcher.Constraint("Horizontal", 3))
sketch10.addConstraint(Sketcher.Constraint("DistanceX", 1, 1, 1, 2, 49.0))
sketch10.addConstraint(Sketcher.Constraint("DistanceY", 0, 2, 0, 1, 39.0))
sketch10.addConstraint(Sketcher.Constraint("DistanceX", 0, 2, -1, 1, 10.0))
sketch10.addConstraint(Sketcher.Constraint("DistanceY", 0, 2, -1, 1, 19.5))
pocket1 = body.newObject("PartDesign::Pocket", "Pocket")
pocket1.Profile = sketch10
pocket1.Length = 70
pocket1.Reversed = True

# Sketch on XY plane
sketch11 = body.newObject("Sketcher::SketchObject", "Sketch010")
sketch11.AttachmentSupport = (doc.getObject("XY_Plane"), [""])
sketch11.MapMode = "FlatFace"
sketch11.AttachmentOffset = App.Placement(V(0, 0, 157), App.Rotation())
sketch11.addGeometry(Part.LineSegment(V(20, -24, 0), V(20, 24, 0)), False)
sketch11.addGeometry(Part.ArcOfCircle(Part.Circle(V(14, 24, 0), V(0, 0, 1), 6), math.radians(0), math.radians(90)), False)
sketch11.addGeometry(Part.LineSegment(V(14, 30, 0), V(-14, 30, 0)), False)
sketch11.addGeometry(Part.ArcOfCircle(Part.Circle(V(-14, 24, 0), V(0, 0, 1), 6), math.radians(90), math.radians(180)), False)
sketch11.addGeometry(Part.LineSegment(V(-20, 24, 0), V(-20, -24, 0)), False)
sketch11.addGeometry(Part.ArcOfCircle(Part.Circle(V(-14, -24, 0), V(0, 0, 1), 6), math.radians(180), math.radians(270)), False)
sketch11.addGeometry(Part.LineSegment(V(-14, -30, 0), V(14, -30, 0)), False)
sketch11.addGeometry(Part.ArcOfCircle(Part.Circle(V(14, -24, 0), V(0, 0, 1), 6), math.radians(-90), math.radians(0)), False)
sketch11.addConstraint(Sketcher.Constraint("Tangent", 0, 2, 1, 1))
sketch11.addConstraint(Sketcher.Constraint("Tangent", 1, 2, 2, 1))
sketch11.addConstraint(Sketcher.Constraint("Tangent", 2, 2, 3, 1))
sketch11.addConstraint(Sketcher.Constraint("Tangent", 3, 2, 4, 1))
sketch11.addConstraint(Sketcher.Constraint("Tangent", 4, 2, 5, 1))
sketch11.addConstraint(Sketcher.Constraint("Tangent", 5, 2, 6, 1))
sketch11.addConstraint(Sketcher.Constraint("Tangent", 6, 2, 7, 1))
sketch11.addConstraint(Sketcher.Constraint("Tangent", 7, 2, 0, 1))
sketch11.addConstraint(Sketcher.Constraint("Vertical", 0))
sketch11.addConstraint(Sketcher.Constraint("Horizontal", 2))
sketch11.addConstraint(Sketcher.Constraint("Vertical", 4))
sketch11.addConstraint(Sketcher.Constraint("Horizontal", 6))
sketch11.addConstraint(Sketcher.Constraint("Equal", 1, 3))
sketch11.addConstraint(Sketcher.Constraint("Equal", 3, 5))
sketch11.addConstraint(Sketcher.Constraint("Equal", 5, 7))
sketch11.addConstraint(Sketcher.Constraint("Symmetric", 1, 3, 5, 3, -1, 1))
sketch11.addConstraint(Sketcher.Constraint("Radius", 1, 6.0))
sketch11.addConstraint(Sketcher.Constraint("DistanceX", 2, 2, 2, 1, 27.0))
sketch11.addConstraint(Sketcher.Constraint("DistanceY", 0, 1, 0, 2, 47.0))
pocket2 = body.newObject("PartDesign::Pocket", "Pocket001")
pocket2.Profile = sketch11
pocket2.Length = 8
pocket2.Reversed = True

# Sketch on XY plane
sketch12 = body.newObject("Sketcher::SketchObject", "Sketch011")
sketch12.AttachmentSupport = (doc.getObject("XY_Plane"), [""])
sketch12.MapMode = "FlatFace"
sketch12.AttachmentOffset = App.Placement(V(0, 0, 166), App.Rotation())
add_polygon(sketch12, [(18, 20), (18, -20), (28, -20), (28, 20)])  # lines 0-3
sketch12.addConstraint(Sketcher.Constraint("Vertical", 0))
sketch12.addConstraint(Sketcher.Constraint("Horizontal", 1))
sketch12.addConstraint(Sketcher.Constraint("Vertical", 2))
sketch12.addConstraint(Sketcher.Constraint("Horizontal", 3))
sketch12.addConstraint(Sketcher.Constraint("DistanceX", 1, 1, 1, 2, 11.0))
sketch12.addConstraint(Sketcher.Constraint("DistanceY", 0, 2, 0, 1, 40.0))
sketch12.addConstraint(Sketcher.Constraint("DistanceY", 0, 2, -1, 1, 20.0))
sketch12.addConstraint(Sketcher.Constraint("DistanceX", -1, 1, 0, 2, 17.5))
pocket3 = body.newObject("PartDesign::Pocket", "Pocket002")
pocket3.Profile = sketch12
pocket3.Length = 58
pocket3.Reversed = True

doc.recompute()
